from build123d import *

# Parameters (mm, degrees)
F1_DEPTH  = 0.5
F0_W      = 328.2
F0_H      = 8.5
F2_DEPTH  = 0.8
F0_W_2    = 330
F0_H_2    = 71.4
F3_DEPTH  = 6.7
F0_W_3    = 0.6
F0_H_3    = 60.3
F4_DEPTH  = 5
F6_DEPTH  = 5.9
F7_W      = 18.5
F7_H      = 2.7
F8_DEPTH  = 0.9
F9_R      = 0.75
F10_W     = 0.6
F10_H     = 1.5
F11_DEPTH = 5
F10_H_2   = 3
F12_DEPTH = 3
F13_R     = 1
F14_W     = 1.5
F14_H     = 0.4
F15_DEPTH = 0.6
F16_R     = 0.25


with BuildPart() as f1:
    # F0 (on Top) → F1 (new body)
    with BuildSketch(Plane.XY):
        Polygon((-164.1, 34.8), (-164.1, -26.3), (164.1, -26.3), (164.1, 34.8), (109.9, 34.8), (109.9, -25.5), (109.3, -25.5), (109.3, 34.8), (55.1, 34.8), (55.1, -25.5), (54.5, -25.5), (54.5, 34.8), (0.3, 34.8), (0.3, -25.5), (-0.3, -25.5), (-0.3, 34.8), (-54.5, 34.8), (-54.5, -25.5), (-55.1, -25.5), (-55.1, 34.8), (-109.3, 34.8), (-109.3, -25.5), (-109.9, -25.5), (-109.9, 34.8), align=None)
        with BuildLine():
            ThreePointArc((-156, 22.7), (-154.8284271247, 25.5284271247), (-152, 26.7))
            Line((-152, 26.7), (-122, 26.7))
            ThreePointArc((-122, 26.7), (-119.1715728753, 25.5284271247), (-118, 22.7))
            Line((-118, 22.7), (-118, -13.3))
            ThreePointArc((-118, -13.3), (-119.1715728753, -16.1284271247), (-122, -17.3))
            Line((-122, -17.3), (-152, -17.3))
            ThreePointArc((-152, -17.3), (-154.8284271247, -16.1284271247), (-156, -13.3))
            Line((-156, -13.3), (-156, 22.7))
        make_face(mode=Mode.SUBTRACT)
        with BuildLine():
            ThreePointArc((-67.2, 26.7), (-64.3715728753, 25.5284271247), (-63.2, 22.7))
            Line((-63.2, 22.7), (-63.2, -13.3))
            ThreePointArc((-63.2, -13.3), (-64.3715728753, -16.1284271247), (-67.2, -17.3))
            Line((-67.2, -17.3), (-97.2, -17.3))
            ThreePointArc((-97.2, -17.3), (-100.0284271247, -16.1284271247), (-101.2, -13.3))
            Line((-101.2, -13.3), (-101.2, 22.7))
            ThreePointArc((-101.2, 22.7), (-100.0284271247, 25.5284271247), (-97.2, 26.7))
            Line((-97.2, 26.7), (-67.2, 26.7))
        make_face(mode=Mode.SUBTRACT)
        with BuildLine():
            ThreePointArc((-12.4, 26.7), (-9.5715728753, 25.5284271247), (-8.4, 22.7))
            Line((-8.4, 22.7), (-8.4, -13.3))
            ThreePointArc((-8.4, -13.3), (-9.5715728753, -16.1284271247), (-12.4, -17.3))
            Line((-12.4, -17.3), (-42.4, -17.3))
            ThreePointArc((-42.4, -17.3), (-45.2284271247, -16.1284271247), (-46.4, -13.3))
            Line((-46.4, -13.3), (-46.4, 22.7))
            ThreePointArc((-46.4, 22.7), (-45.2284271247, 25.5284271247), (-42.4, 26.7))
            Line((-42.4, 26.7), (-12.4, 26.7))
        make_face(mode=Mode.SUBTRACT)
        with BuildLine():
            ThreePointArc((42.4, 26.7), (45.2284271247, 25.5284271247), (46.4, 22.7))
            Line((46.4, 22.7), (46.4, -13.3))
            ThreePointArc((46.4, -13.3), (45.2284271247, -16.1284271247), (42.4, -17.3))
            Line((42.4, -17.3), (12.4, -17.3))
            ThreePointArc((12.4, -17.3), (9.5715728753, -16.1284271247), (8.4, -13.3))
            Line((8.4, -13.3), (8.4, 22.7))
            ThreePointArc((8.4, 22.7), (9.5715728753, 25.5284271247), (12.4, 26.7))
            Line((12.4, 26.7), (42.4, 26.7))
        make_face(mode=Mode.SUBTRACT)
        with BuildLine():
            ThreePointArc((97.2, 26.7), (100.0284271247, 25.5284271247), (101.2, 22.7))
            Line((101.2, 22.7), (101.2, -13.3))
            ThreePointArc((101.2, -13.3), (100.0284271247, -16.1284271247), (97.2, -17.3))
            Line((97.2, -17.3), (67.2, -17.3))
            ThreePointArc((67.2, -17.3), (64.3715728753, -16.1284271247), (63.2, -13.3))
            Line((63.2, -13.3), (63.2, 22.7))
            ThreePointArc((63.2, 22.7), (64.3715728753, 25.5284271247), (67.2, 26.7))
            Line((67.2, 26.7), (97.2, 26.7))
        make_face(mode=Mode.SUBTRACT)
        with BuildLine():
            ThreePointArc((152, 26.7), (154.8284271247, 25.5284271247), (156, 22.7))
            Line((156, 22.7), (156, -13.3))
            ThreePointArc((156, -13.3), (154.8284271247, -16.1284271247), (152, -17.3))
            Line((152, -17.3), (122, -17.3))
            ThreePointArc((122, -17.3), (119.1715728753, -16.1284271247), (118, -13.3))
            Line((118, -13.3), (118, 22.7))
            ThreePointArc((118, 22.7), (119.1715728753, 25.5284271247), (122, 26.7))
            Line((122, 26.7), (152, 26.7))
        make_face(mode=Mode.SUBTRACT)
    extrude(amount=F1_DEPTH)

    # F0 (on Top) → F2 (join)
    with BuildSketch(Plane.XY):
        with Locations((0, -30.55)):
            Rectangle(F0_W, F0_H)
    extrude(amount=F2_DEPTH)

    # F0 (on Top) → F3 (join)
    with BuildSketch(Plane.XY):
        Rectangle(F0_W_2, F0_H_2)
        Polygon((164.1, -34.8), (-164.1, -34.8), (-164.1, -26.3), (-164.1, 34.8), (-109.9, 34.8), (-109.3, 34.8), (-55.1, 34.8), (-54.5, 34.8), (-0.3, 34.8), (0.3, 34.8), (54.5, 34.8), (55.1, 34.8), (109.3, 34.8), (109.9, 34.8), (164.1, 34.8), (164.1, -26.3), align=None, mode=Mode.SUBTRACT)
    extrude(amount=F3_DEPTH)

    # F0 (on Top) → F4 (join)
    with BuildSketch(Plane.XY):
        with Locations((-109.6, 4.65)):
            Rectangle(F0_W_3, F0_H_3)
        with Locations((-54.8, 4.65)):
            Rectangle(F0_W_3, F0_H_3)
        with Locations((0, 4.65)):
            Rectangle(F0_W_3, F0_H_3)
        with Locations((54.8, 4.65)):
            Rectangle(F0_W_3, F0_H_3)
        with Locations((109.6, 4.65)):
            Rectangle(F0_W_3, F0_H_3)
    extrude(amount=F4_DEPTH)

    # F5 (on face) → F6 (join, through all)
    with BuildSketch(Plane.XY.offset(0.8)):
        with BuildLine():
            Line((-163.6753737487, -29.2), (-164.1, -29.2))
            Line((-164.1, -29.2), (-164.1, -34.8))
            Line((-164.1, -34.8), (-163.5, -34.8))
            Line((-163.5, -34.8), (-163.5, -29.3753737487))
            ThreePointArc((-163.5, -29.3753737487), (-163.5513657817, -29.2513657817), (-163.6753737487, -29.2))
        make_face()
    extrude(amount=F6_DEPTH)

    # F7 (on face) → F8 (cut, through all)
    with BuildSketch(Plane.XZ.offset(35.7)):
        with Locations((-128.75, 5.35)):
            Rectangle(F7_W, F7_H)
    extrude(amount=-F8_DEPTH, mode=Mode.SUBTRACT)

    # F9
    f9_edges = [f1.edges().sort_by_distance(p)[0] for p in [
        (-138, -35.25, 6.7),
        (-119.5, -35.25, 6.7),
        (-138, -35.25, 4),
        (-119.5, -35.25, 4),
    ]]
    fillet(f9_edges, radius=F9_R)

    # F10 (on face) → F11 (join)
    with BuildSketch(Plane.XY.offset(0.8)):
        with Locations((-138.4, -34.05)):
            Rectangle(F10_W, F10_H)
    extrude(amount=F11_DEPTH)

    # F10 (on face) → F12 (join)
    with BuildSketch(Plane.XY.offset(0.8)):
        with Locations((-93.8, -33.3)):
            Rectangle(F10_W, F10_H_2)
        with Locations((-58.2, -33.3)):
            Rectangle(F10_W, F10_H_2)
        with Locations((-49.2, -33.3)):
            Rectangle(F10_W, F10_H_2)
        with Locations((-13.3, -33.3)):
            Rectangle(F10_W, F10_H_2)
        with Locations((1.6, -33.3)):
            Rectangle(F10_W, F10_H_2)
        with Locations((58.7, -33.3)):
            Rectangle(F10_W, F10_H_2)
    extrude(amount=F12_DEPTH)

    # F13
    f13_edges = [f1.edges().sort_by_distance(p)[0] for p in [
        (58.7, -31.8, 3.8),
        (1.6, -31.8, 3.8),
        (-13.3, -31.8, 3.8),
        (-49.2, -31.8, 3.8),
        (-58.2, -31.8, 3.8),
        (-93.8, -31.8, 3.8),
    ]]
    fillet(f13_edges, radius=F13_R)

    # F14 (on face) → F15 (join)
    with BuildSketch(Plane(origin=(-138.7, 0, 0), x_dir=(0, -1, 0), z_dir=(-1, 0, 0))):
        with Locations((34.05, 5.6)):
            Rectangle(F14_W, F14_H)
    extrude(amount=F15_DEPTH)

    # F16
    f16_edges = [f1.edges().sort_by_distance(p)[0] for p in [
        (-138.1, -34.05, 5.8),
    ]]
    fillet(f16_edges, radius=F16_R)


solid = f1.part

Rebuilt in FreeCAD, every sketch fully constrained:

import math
import FreeCAD as App
import Part
import Sketcher


def edges_at(feature, points):
    """Names of the edges that pass closest to the given points."""
    edges = feature.Shape.Edges
    near = lambda p: min(range(len(edges)), key=lambda i: edges[i].distToShape(Part.Vertex(*p))[0])
    return sorted({f"Edge{near(p) + 1}" for p in points})

doc = App.newDocument("Part")
body = doc.addObject("PartDesign::Body", "Body")

sketch1 = body.newObject("Sketcher::SketchObject", "Sketch")
sketch1.AttachmentSupport = (doc.getObject("XY_Plane"), [""])
sketch1.MapMode = "FlatFace"
sketch1.addGeometry([
    Part.LineSegment(App.Vector(-164.1, 34.8, 0), App.Vector(-164.1, -26.3, 0)),
    Part.LineSegment(App.Vector(-164.1, -26.3, 0), App.Vector(164.1, -26.3, 0)),
    Part.LineSegment(App.Vector(164.1, -26.3, 0), App.Vector(164.1, 34.8, 0)),
    Part.LineSegment(App.Vector(164.1, 34.8, 0), App.Vector(109.9, 34.8, 0)),
    Part.LineSegment(App.Vector(109.9, 34.8, 0), App.Vector(109.9, -25.5, 0)),
    Part.LineSegment(App.Vector(109.9, -25.5, 0), App.Vector(109.3, -25.5, 0)),
    Part.LineSegment(App.Vector(109.3, -25.5, 0), App.Vector(109.3, 34.8, 0)),
    Part.LineSegment(App.Vector(109.3, 34.8, 0), App.Vector(55.1, 34.8, 0)),
    Part.LineSegment(App.Vector(55.1, 34.8, 0), App.Vector(55.1, -25.5, 0)),
    Part.LineSegment(App.Vector(55.1, -25.5, 0), App.Vector(54.5, -25.5, 0)),
    Part.LineSegment(App.Vector(54.5, -25.5, 0), App.Vector(54.5, 34.8, 0)),
    Part.LineSegment(App.Vector(54.5, 34.8, 0), App.Vector(0.3, 34.8, 0)),
    Part.LineSegment(App.Vector(0.3, 34.8, 0), App.Vector(0.3, -25.5, 0)),
    Part.LineSegment(App.Vector(0.3, -25.5, 0), App.Vector(-0.3, -25.5, 0)),
    Part.LineSegment(App.Vector(-0.3, -25.5, 0), App.Vector(-0.3, 34.8, 0)),
    Part.LineSegment(App.Vector(-0.3, 34.8, 0), App.Vector(-54.5, 34.8, 0)),
    Part.LineSegment(App.Vector(-54.5, 34.8, 0), App.Vector(-54.5, -25.5, 0)),
    Part.LineSegment(App.Vector(-54.5, -25.5, 0), App.Vector(-55.1, -25.5, 0)),
    Part.LineSegment(App.Vector(-55.1, -25.5, 0), App.Vector(-55.1, 34.8, 0)),
    Part.LineSegment(App.Vector(-55.1, 34.8, 0), App.Vector(-109.3, 34.8, 0)),
    Part.LineSegment(App.Vector(-109.3, 34.8, 0), App.Vector(-109.3, -25.5, 0)),
    Part.LineSegment(App.Vector(-109.3, -25.5, 0), App.Vector(-109.9, -25.5, 0)),
    Part.LineSegment(App.Vector(-109.9, -25.5, 0), App.Vector(-109.9, 34.8, 0)),
    Part.LineSegment(App.Vector(-109.9, 34.8, 0), App.Vector(-164.1, 34.8, 0)),
    Part.LineSegment(App.Vector(-156, -13.3, 0), App.Vector(-156, 22.7, 0)),
    Part.ArcOfCircle(Part.Circle(App.Vector(-152, 22.7, 0), App.Vector(0, 0, 1), 4), math.radians(90), math.radians(180)),
    Part.LineSegment(App.Vector(-152, 26.7, 0), App.Vector(-122, 26.7, 0)),
    Part.ArcOfCircle(Part.Circle(App.Vector(-122, 22.7, 0), App.Vector(0, 0, 1), 4), math.radians(0), math.radians(90)),
    Part.LineSegment(App.Vector(-118, 22.7, 0), App.Vector(-118, -13.3, 0)),
    Part.ArcOfCircle(Part.Circle(App.Vector(-122, -13.3, 0), App.Vector(0, 0, 1), 4), math.radians(-90), math.radians(0)),
    Part.LineSegment(App.Vector(-122, -17.3, 0), App.Vector(-152, -17.3, 0)),
    Part.ArcOfCircle(Part.Circle(App.Vector(-152, -13.3, 0), App.Vector(0, 0, 1), 4), math.radians(180), math.radians(270)),
    Part.LineSegment(App.Vector(-97.2, 26.7, 0), App.Vector(-67.2, 26.7, 0)),
    Part.ArcOfCircle(Part.Circle(App.Vector(-67.2, 22.7, 0), App.Vector(0, 0, 1), 4), math.radians(0), math.radians(90)),
    Part.LineSegment(App.Vector(-63.2, 22.7, 0), App.Vector(-63.2, -13.3, 0)),
    Part.ArcOfCircle(Part.Circle(App.Vector(-67.2, -13.3, 0), App.Vector(0, 0, 1), 4), math.radians(-90), math.radians(0)),
    Part.LineSegment(App.Vector(-67.2, -17.3, 0), App.Vector(-97.2, -17.3, 0)),
    Part.ArcOfCircle(Part.Circle(App.Vector(-97.2, -13.3, 0), App.Vector(0, 0, 1), 4), math.radians(180), math.radians(270)),
    Part.LineSegment(App.Vector(-101.2, -13.3, 0), App.Vector(-101.2, 22.7, 0)),
    Part.ArcOfCircle(Part.Circle(App.Vector(-97.2, 22.7, 0), App.Vector(0, 0, 1), 4), math.radians(90), math.radians(180)),
    Part.LineSegment(App.Vector(-42.4, 26.7, 0), App.Vector(-12.4, 26.7, 0)),
    Part.ArcOfCircle(Part.Circle(App.Vector(-12.4, 22.7, 0), App.Vector(0, 0, 1), 4), math.radians(0), math.radians(90)),
    Part.LineSegment(App.Vector(-8.4, 22.7, 0), App.Vector(-8.4, -13.3, 0)),
    Part.ArcOfCircle(Part.Circle(App.Vector(-12.4, -13.3, 0), App.Vector(0, 0, 1), 4), math.radians(-90), math.radians(0)),
    Part.LineSegment(App.Vector(-12.4, -17.3, 0), App.Vector(-42.4, -17.3, 0)),
    Part.ArcOfCircle(Part.Circle(App.Vector(-42.4, -13.3, 0), App.Vector(0, 0, 1), 4), math.radians(180), math.radians(270)),
    Part.LineSegment(App.Vector(-46.4, -13.3, 0), App.Vector(-46.4, 22.7, 0)),
    Part.ArcOfCircle(Part.Circle(App.Vector(-42.4, 22.7, 0), App.Vector(0, 0, 1), 4), math.radians(90), math.radians(180)),
    Part.LineSegment(App.Vector(12.4, 26.7, 0), App.Vector(42.4, 26.7, 0)),
    Part.ArcOfCircle(Part.Circle(App.Vector(42.4, 22.7, 0), App.Vector(0, 0, 1), 4), math.radians(0), math.radians(90)),
    Part.LineSegment(App.Vector(46.4, 22.7, 0), App.Vector(46.4, -13.3, 0)),
    Part.ArcOfCircle(Part.Circle(App.Vector(42.4, -13.3, 0), App.Vector(0, 0, 1), 4), math.radians(-90), math.radians(0)),
    Part.LineSegment(App.Vector(42.4, -17.3, 0), App.Vector(12.4, -17.3, 0)),
    Part.ArcOfCircle(Part.Circle(App.Vector(12.4, -13.3, 0), App.Vector(0, 0, 1), 4), math.radians(180), math.radians(270)),
    Part.LineSegment(App.Vector(8.4, -13.3, 0), App.Vector(8.4, 22.7, 0)),
    Part.ArcOfCircle(Part.Circle(App.Vector(12.4, 22.7, 0), App.Vector(0, 0, 1), 4), math.radians(90), math.radians(180)),
    Part.LineSegment(App.Vector(67.2, 26.7, 0), App.Vector(97.2, 26.7, 0)),
    Part.ArcOfCircle(Part.Circle(App.Vector(97.2, 22.7, 0), App.Vector(0, 0, 1), 4), math.radians(0), math.radians(90)),
    Part.LineSegment(App.Vector(101.2, 22.7, 0), App.Vector(101.2, -13.3, 0)),
    Part.ArcOfCircle(Part.Circle(App.Vector(97.2, -13.3, 0), App.Vector(0, 0, 1), 4), math.radians(-90), math.radians(0)),
    Part.LineSegment(App.Vector(97.2, -17.3, 0), App.Vector(67.2, -17.3, 0)),
    Part.ArcOfCircle(Part.Circle(App.Vector(67.2, -13.3, 0), App.Vector(0, 0, 1), 4), math.radians(180), math.radians(270)),
    Part.LineSegment(App.Vector(63.2, -13.3, 0), App.Vector(63.2, 22.7, 0)),
    Part.ArcOfCircle(Part.Circle(App.Vector(67.2, 22.7, 0), App.Vector(0, 0, 1), 4), math.radians(90), math.radians(180)),
    Part.LineSegment(App.Vector(122, 26.7, 0), App.Vector(152, 26.7, 0)),
    Part.ArcOfCircle(Part.Circle(App.Vector(152, 22.7, 0), App.Vector(0, 0, 1), 4), math.radians(0), math.radians(90)),
    Part.LineSegment(App.Vector(156, 22.7, 0), App.Vector(156, -13.3, 0)),
    Part.ArcOfCircle(Part.Circle(App.Vector(152, -13.3, 0), App.Vector(0, 0, 1), 4), math.radians(-90), math.radians(0)),
    Part.LineSegment(App.Vector(152, -17.3, 0), App.Vector(122, -17.3, 0)),
    Part.ArcOfCircle(Part.Circle(App.Vector(122, -13.3, 0), App.Vector(0, 0, 1), 4), math.radians(180), math.radians(270)),
    Part.LineSegment(App.Vector(118, -13.3, 0), App.Vector(118, 22.7, 0)),
    Part.ArcOfCircle(Part.Circle(App.Vector(122, 22.7, 0), App.Vector(0, 0, 1), 4), math.radians(90), math.radians(180)),
], False)
sketch1.addConstraint([
    Sketcher.Constraint("Coincident", 0, 2, 1, 1),
    Sketcher.Constraint("Coincident", 1, 2, 2, 1),
    Sketcher.Constraint("Coincident", 2, 2, 3, 1),
    Sketcher.Constraint("Coincident", 3, 2, 4, 1),
    Sketcher.Constraint("Coincident", 4, 2, 5, 1),
    Sketcher.Constraint("Coincident", 5, 2, 6, 1),
    Sketcher.Constraint("Coincident", 6, 2, 7, 1),
    Sketcher.Constraint("Coincident", 7, 2, 8, 1),
    Sketcher.Constraint("Coincident", 8, 2, 9, 1),
    Sketcher.Constraint("Coincident", 9, 2, 10, 1),
    Sketcher.Constraint("Coincident", 10, 2, 11, 1),
    Sketcher.Constraint("Coincident", 11, 2, 12, 1),
    Sketcher.Constraint("Coincident", 12, 2, 13, 1),
    Sketcher.Constraint("Coincident", 13, 2, 14, 1),
    Sketcher.Constraint("Coincident", 14, 2, 15, 1),
    Sketcher.Constraint("Coincident", 15, 2, 16, 1),
    Sketcher.Constraint("Coincident", 16, 2, 17, 1),
    Sketcher.Constraint("Coincident", 17, 2, 18, 1),
    Sketcher.Constraint("Coincident", 18, 2, 19, 1),
    Sketcher.Constraint("Coincident", 19, 2, 20, 1),
    Sketcher.Constraint("Coincident", 20, 2, 21, 1),
    Sketcher.Constraint("Coincident", 21, 2, 22, 1),
    Sketcher.Constraint("Coincident", 22, 2, 23, 1),
    Sketcher.Constraint("Coincident", 23, 2, 0, 1),
    Sketcher.Constraint("Tangent", 24, 2, 25, 2),
    Sketcher.Constraint("Tangent", 25, 1, 26, 1),
    Sketcher.Constraint("Tangent", 26, 2, 27, 2),
    Sketcher.Constraint("Tangent", 27, 1, 28, 1),
    Sketcher.Constraint("Tangent", 28, 2, 29, 2),
    Sketcher.Constraint("Tangent", 29, 1, 30, 1),
    Sketcher.Constraint("Tangent", 30, 2, 31, 2),
    Sketcher.Constraint("Tangent", 31, 1, 24, 1),
    Sketcher.Constraint("Tangent", 32, 2, 33, 2),
    Sketcher.Constraint("Tangent", 33, 1, 34, 1),
    Sketcher.Constraint("Tangent", 34, 2, 35, 2),
    Sketcher.Constraint("Tangent", 35, 1, 36, 1),
    Sketcher.Constraint("Tangent", 36, 2, 37, 2),
    Sketcher.Constraint("Tangent", 37, 1, 38, 1),
    Sketcher.Constraint("Tangent", 38, 2, 39, 2),
    Sketcher.Constraint("Tangent", 39, 1, 32, 1),
    Sketcher.Constraint("Tangent", 40, 2, 41, 2),
    Sketcher.Constraint("Tangent", 41, 1, 42, 1),
    Sketcher.Constraint("Tangent", 42, 2, 43, 2),
    Sketcher.Constraint("Tangent", 43, 1, 44, 1),
    Sketcher.Constraint("Tangent", 44, 2, 45, 2),
    Sketcher.Constraint("Tangent", 45, 1, 46, 1),
    Sketcher.Constraint("Tangent", 46, 2, 47, 2),
    Sketcher.Constraint("Tangent", 47, 1, 40, 1),
    Sketcher.Constraint("Tangent", 48, 2, 49, 2),
    Sketcher.Constraint("Tangent", 49, 1, 50, 1),
    Sketcher.Constraint("Tangent", 50, 2, 51, 2),
    Sketcher.Constraint("Tangent", 51, 1, 52, 1),
    Sketcher.Constraint("Tangent", 52, 2, 53, 2),
    Sketcher.Constraint("Tangent", 53, 1, 54, 1),
    Sketcher.Constraint("Tangent", 54, 2, 55, 2),
    Sketcher.Constraint("Tangent", 55, 1, 48, 1),
    Sketcher.Constraint("Tangent", 56, 2, 57, 2),
    Sketcher.Constraint("Tangent", 57, 1, 58, 1),
    Sketcher.Constraint("Tangent", 58, 2, 59, 2),
    Sketcher.Constraint("Tangent", 59, 1, 60, 1),
    Sketcher.Constraint("Tangent", 60, 2, 61, 2),
    Sketcher.Constraint("Tangent", 61, 1, 62, 1),
    Sketcher.Constraint("Tangent", 62, 2, 63, 2),
    Sketcher.Constraint("Tangent", 63, 1, 56, 1),
    Sketcher.Constraint("Tangent", 64, 2, 65, 2),
    Sketcher.Constraint("Tangent", 65, 1, 66, 1),
    Sketcher.Constraint("Tangent", 66, 2, 67, 2),
    Sketcher.Constraint("Tangent", 67, 1, 68, 1),
    Sketcher.Constraint("Tangent", 68, 2, 69, 2),
    Sketcher.Constraint("Tangent", 69, 1, 70, 1),
    Sketcher.Constraint("Tangent", 70, 2, 71, 2),
    Sketcher.Constraint("Tangent", 71, 1, 64, 1),
    Sketcher.Constraint("Vertical", 0),
    Sketcher.Constraint("Horizontal", 1),
    Sketcher.Constraint("Vertical", 2),
    Sketcher.Constraint("Horizontal", 3),
    Sketcher.Constraint("Vertical", 4),
    Sketcher.Constraint("Horizontal", 5),
    Sketcher.Constraint("Vertical", 6),
    Sketcher.Constraint("Horizontal", 7),
    Sketcher.Constraint("Vertical", 8),
    Sketcher.Constraint("Horizontal", 9),
    Sketcher.Constraint("Vertical", 10),
    Sketcher.Constraint("Horizontal", 11),
    Sketcher.Constraint("Vertical", 12),
    Sketcher.Constraint("Horizontal", 13),
    Sketcher.Constraint("Vertical", 14),
    Sketcher.Constraint("Horizontal", 15),
    Sketcher.Constraint("Vertical", 16),
    Sketcher.Constraint("Horizontal", 17),
    Sketcher.Constraint("Vertical", 18),
    Sketcher.Constraint("Horizontal", 19),
    Sketcher.Constraint("Vertical", 20),
    Sketcher.Constraint("Horizontal", 21),
    Sketcher.Constraint("Vertical", 22),
    Sketcher.Constraint("Horizontal", 23),
    Sketcher.Constraint("Vertical", 24),
    Sketcher.Constraint("Horizontal", 26),
    Sketcher.Constraint("Vertical", 28),
    Sketcher.Constraint("Horizontal", 30),
    Sketcher.Constraint("Horizontal", 32),
    Sketcher.Constraint("Vertical", 34),
    Sketcher.Constraint("Horizontal", 36),
    Sketcher.Constraint("Vertical", 38),
    Sketcher.Constraint("Horizontal", 40),
    Sketcher.Constraint("Vertical", 42),
    Sketcher.Constraint("Horizontal", 44),
    Sketcher.Constraint("Vertical", 46),
    Sketcher.Constraint("Horizontal", 48),
    Sketcher.Constraint("Vertical", 50),
    Sketcher.Constraint("Horizontal", 52),
    Sketcher.Constraint("Vertical", 54),
    Sketcher.Constraint("Horizontal", 56),
    Sketcher.Constraint("Vertical", 58),
    Sketcher.Constraint("Horizontal", 60),
    Sketcher.Constraint("Vertical", 62),
    Sketcher.Constraint("Horizontal", 64),
    Sketcher.Constraint("Vertical", 66),
    Sketcher.Constraint("Horizontal", 68),
    Sketcher.Constraint("Vertical", 70),
    Sketcher.Constraint("Equal", 25, 27),
    Sketcher.Constraint("Equal", 27, 29),
    Sketcher.Constraint("Equal", 29, 31),
    Sketcher.Constraint("Equal", 31, 33),
    Sketcher.Constraint("Equal", 33, 35),
    Sketcher.Constraint("Equal", 35, 37),
    Sketcher.Constraint("Equal", 37, 39),
    Sketcher.Constraint("Equal", 39, 41),
    Sketcher.Constraint("Equal", 41, 43),
    Sketcher.Constraint("Equal", 43, 45),
    Sketcher.Constraint("Equal", 45, 47),
    Sketcher.Constraint("Equal", 47, 49),
    Sketcher.Constraint("Equal", 49, 51),
    Sketcher.Constraint("Equal", 51, 53),
    Sketcher.Constraint("Equal", 53, 55),
    Sketcher.Constraint("Equal", 55, 57),
    Sketcher.Constraint("Equal", 57, 59),
    Sketcher.Constraint("Equal", 59, 61),
    Sketcher.Constraint("Equal", 61, 63),
    Sketcher.Constraint("Equal", 63, 65),
    Sketcher.Constraint("Equal", 65, 67),
    Sketcher.Constraint("Equal", 67, 69),
    Sketcher.Constraint("Equal", 69, 71),
    Sketcher.Constraint("Symmetric", 47, 3, 49, 3, -2),
    Sketcher.Constraint("Symmetric", 43, 3, 53, 3, -2),
    Sketcher.Constraint("Symmetric", 39, 3, 57, 3, -2),
    Sketcher.Constraint("Symmetric", 35, 3, 61, 3, -2),
    Sketcher.Constraint("Symmetric", 25, 3, 65, 3, -2),
    Sketcher.Constraint("Symmetric", 29, 3, 69, 3, -2),
    Sketcher.Constraint("Symmetric", 11, 2, 14, 2, -2),
    Sketcher.Constraint("Symmetric", 9, 2, 16, 2, -2),
    Sketcher.Constraint("Symmetric", 7, 2, 18, 2, -2),
    Sketcher.Constraint("Symmetric", 5, 2, 20, 2, -2),
    Sketcher.Constraint("Symmetric", 3, 2, 22, 2, -2),
    Sketcher.Constraint("Horizontal", 27, 3, 33, 3),
    Sketcher.Constraint("Horizontal", 31, 3, 35, 3),
    Sketcher.Constraint("Horizontal", 39, 3, 41, 3),
    Sketcher.Constraint("Horizontal", 37, 3, 43, 3),
    Sketcher.Constraint("Horizontal", 3, 2, 6, 2),
    Sketcher.Constraint("Horizontal", 5, 2, 8, 2),
    Sketcher.Constraint("Horizontal", 7, 2, 10, 2),
    Sketcher.Constraint("Horizontal", 9, 2, 12, 2),
    Sketcher.Constraint("Equal", 3, 7),
    Sketcher.Constraint("Equal", 5, 9),
    Sketcher.Constraint("Equal", 7, 11),
    Sketcher.Constraint("Equal", 9, 13),
    Sketcher.Constraint("Equal", 19, 23),
    Sketcher.Constraint("Equal", 30, 32),
    Sketcher.Constraint("Equal", 36, 40),
    Sketcher.Constraint("Radius", 25, 4.0),
    Sketcher.Constraint("DistanceX", 26, 1, 26, 2, 30.0),
    Sketcher.Constraint("DistanceY", 24, 1, 24, 2, 36.0),
    Sketcher.Constraint("DistanceX", 1, 1, 1, 2, 328.2),
    Sketcher.Constraint("DistanceX", 3, 2, 3, 1, 54.2),
    Sketcher.Constraint("DistanceY", 0, 2, 0, 1, 61.1),
    Sketcher.Constraint("DistanceY", 4, 2, 4, 1, 60.3),
    Sketcher.Constraint("DistanceX", 25, 3, -1, 1, 152.0),
    Sketcher.Constraint("DistanceY", -1, 1, 25, 3, 22.7),
    Sketcher.Constraint("DistanceX", 33, 3, -1, 1, 67.2),
    Sketcher.Constraint("DistanceX", 41, 3, -1, 1, 12.4),
    Sketcher.Constraint("DistanceY", 0, 2, -1, 1, 26.3),
])
pad1 = body.newObject("PartDesign::Pad", "Pad")
pad1.Profile = sketch1
pad1.Length = 0.5

sketch2 = body.newObject("Sketcher::SketchObject", "Sketch001")
sketch2.AttachmentSupport = (doc.getObject("XY_Plane"), [""])
sketch2.MapMode = "FlatFace"
sketch2.addGeometry([
    Part.LineSegment(App.Vector(-164, -26, 0), App.Vector(-164, -35, 0)),
    Part.LineSegment(App.Vector(-164, -35, 0), App.Vector(164, -35, 0)),
    Part.LineSegment(App.Vector(164, -35, 0), App.Vector(164, -26, 0)),
    Part.LineSegment(App.Vector(164, -26, 0), App.Vector(-164, -26, 0)),
], False)
sketch2.addConstraint([
    Sketcher.Constraint("Coincident", 0, 2, 1, 1),
    Sketcher.Constraint("Coincident", 1, 2, 2, 1),
    Sketcher.Constraint("Coincident", 2, 2, 3, 1),
    Sketcher.Constraint("Coincident", 3, 2, 0, 1),
    Sketcher.Constraint("Vertical", 0),
    Sketcher.Constraint("Horizontal", 1),
    Sketcher.Constraint("Vertical", 2),
    Sketcher.Constraint("Horizontal", 3),
    Sketcher.Constraint("DistanceX", 1, 1, 1, 2, 328.2),
    Sketcher.Constraint("DistanceY", 0, 2, 0, 1, 8.5),
    Sketcher.Constraint("DistanceX", 0, 2, -1, 1, 164.1),
    Sketcher.Constraint("DistanceY", 0, 2, -1, 1, 34.8),
])
pad2 = body.newObject("PartDesign::Pad", "Pad001")
pad2.Profile = sketch2
pad2.Length = 0.8

sketch3 = body.newObject("Sketcher::SketchObject", "Sketch002")
sketch3.AttachmentSupport = (doc.getObject("XY_Plane"), [""])
sketch3.MapMode = "FlatFace"
sketch3.addGeometry([
    Part.LineSegment(App.Vector(-165, 36, 0), App.Vector(-165, -36, 0)),
    Part.LineSegment(App.Vector(-165, -36, 0), App.Vector(165, -36, 0)),
    Part.LineSegment(App.Vector(165, -36, 0), App.Vector(165, 36, 0)),
    Part.LineSegment(App.Vector(165, 36, 0), App.Vector(-165, 36, 0)),
    Part.LineSegment(App.Vector(164, 35, 0), App.Vector(164, -35, 0)),
    Part.LineSegment(App.Vector(164, -35, 0), App.Vector(-164, -35, 0)),
    Part.LineSegment(App.Vector(-164, -35, 0), App.Vector(-164, 35, 0)),
    Part.LineSegment(App.Vector(-164, 35, 0), App.Vector(164, 35, 0)),
], False)
sketch3.addConstraint([
    Sketcher.Constraint("Coincident", 0, 2, 1, 1),
    Sketcher.Constraint("Coincident", 1, 2, 2, 1),
    Sketcher.Constraint("Coincident", 2, 2, 3, 1),
    Sketcher.Constraint("Coincident", 3, 2, 0, 1),
    Sketcher.Constraint("Coincident", 4, 2, 5, 1),
    Sketcher.Constraint("Coincident", 5, 2, 6, 1),
    Sketcher.Constraint("Coincident", 6, 2, 7, 1),
    Sketcher.Constraint("Coincident", 7, 2, 4, 1),
    Sketcher.Constraint("Vertical", 0),
    Sketcher.Constraint("Horizontal", 1),
    Sketcher.Constraint("Vertical", 2),
    Sketcher.Constraint("Horizontal", 3),
    Sketcher.Constraint("Vertical", 4),
    Sketcher.Constraint("Horizontal", 5),
    Sketcher.Constraint("Vertical", 6),
    Sketcher.Constraint("Horizontal", 7),
    Sketcher.Constraint("Symmetric", 0, 2, 2, 2, -1, 1),
    Sketcher.Constraint("Symmetric", 4, 2, 6, 2, -1, 1),
    Sketcher.Constraint("DistanceX", 1, 1, 1, 2, 330.0),
    Sketcher.Constraint("DistanceX", 5, 2, 5, 1, 328.2),
    Sketcher.Constraint("DistanceY", 0, 2, 0, 1, 71.4),
    Sketcher.Constraint("DistanceY", 4, 2, 4, 1, 69.6),
])
pad3 = body.newObject("PartDesign::Pad", "Pad002")
pad3.Profile = sketch3
pad3.Length = 6.7

sketch4 = body.newObject("Sketcher::SketchObject", "Sketch003")
sketch4.AttachmentSupport = (doc.getObject("XY_Plane"), [""])
sketch4.MapMode = "FlatFace"
sketch4.addGeometry([
    Part.LineSegment(App.Vector(-109.9, 34.8, 0), App.Vector(-109.9, -25.5, 0)),
    Part.LineSegment(App.Vector(-109.9, -25.5, 0), App.Vector(-109.3, -25.5, 0)),
    Part.LineSegment(App.Vector(-109.3, -25.5, 0), App.Vector(-109.3, 34.8, 0)),
    Part.LineSegment(App.Vector(-109.3, 34.8, 0), App.Vector(-109.9, 34.8, 0)),
    Part.LineSegment(App.Vector(-55.1, 34.8, 0), App.Vector(-55.1, -25.5, 0)),
    Part.LineSegment(App.Vector(-55.1, -25.5, 0), App.Vector(-54.5, -25.5, 0)),
    Part.LineSegment(App.Vector(-54.5, -25.5, 0), App.Vector(-54.5, 34.8, 0)),
    Part.LineSegment(App.Vector(-54.5, 34.8, 0), App.Vector(-55.1, 34.8, 0)),
    Part.LineSegment(App.Vector(-0.3, 34.8, 0), App.Vector(-0.3, -25.5, 0)),
    Part.LineSegment(App.Vector(-0.3, -25.5, 0), App.Vector(0.3, -25.5, 0)),
    Part.LineSegment(App.Vector(0.3, -25.5, 0), App.Vector(0.3, 34.8, 0)),
    Part.LineSegment(App.Vector(0.3, 34.8, 0), App.Vector(-0.3, 34.8, 0)),
    Part.LineSegment(App.Vector(54.5, 34.8, 0), App.Vector(54.5, -25.5, 0)),
    Part.LineSegment(App.Vector(54.5, -25.5, 0), App.Vector(55.1, -25.5, 0)),
    Part.LineSegment(App.Vector(55.1, -25.5, 0), App.Vector(55.1, 34.8, 0)),
    Part.LineSegment(App.Vector(55.1, 34.8, 0), App.Vector(54.5, 34.8, 0)),
    Part.LineSegment(App.Vector(109.3, 34.8, 0), App.Vector(109.3, -25.5, 0)),
    Part.LineSegment(App.Vector(109.3, -25.5, 0), App.Vector(109.9, -25.5, 0)),
    Part.LineSegment(App.Vector(109.9, -25.5, 0), App.Vector(109.9, 34.8, 0)),
    Part.LineSegment(App.Vector(109.9, 34.8, 0), App.Vector(109.3, 34.8, 0)),
], False)
sketch4.addConstraint([
    Sketcher.Constraint("Coincident", 0, 2, 1, 1),
    Sketcher.Constraint("Coincident", 1, 2, 2, 1),
    Sketcher.Constraint("Coincident", 2, 2, 3, 1),
    Sketcher.Constraint("Coincident", 3, 2, 0, 1),
    Sketcher.Constraint("Coincident", 4, 2, 5, 1),
    Sketcher.Constraint("Coincident", 5, 2, 6, 1),
    Sketcher.Constraint("Coincident", 6, 2, 7, 1),
    Sketcher.Constraint("Coincident", 7, 2, 4, 1),
    Sketcher.Constraint("Coincident", 8, 2, 9, 1),
    Sketcher.Constraint("Coincident", 9, 2, 10, 1),
    Sketcher.Constraint("Coincident", 10, 2, 11, 1),
    Sketcher.Constraint("Coincident", 11, 2, 8, 1),
    Sketcher.Constraint("Coincident", 12, 2, 13, 1),
    Sketcher.Constraint("Coincident", 13, 2, 14, 1),
    Sketcher.Constraint("Coincident", 14, 2, 15, 1),
    Sketcher.Constraint("Coincident", 15, 2, 12, 1),
    Sketcher.Constraint("Coincident", 16, 2, 17, 1),
    Sketcher.Constraint("Coincident", 17, 2, 18, 1),
    Sketcher.Constraint("Coincident", 18, 2, 19, 1),
    Sketcher.Constraint("Coincident", 19, 2, 16, 1),
    Sketcher.Constraint("Vertical", 0),
    Sketcher.Constraint("Horizontal", 1),
    Sketcher.Constraint("Vertical", 2),
    Sketcher.Constraint("Horizontal", 3),
    Sketcher.Constraint("Vertical", 4),
    Sketcher.Constraint("Horizontal", 5),
    Sketcher.Constraint("Vertical", 6),
    Sketcher.Constraint("Horizontal", 7),
    Sketcher.Constraint("Vertical", 8),
    Sketcher.Constraint("Horizontal", 9),
    Sketcher.Constraint("Vertical", 10),
    Sketcher.Constraint("Horizontal", 11),
    Sketcher.Constraint("Vertical", 12),
    Sketcher.Constraint("Horizontal", 13),
    Sketcher.Constraint("Vertical", 14),
    Sketcher.Constraint("Horizontal", 15),
    Sketcher.Constraint("Vertical", 16),
    Sketcher.Constraint("Horizontal", 17),
    Sketcher.Constraint("Vertical", 18),
    Sketcher.Constraint("Horizontal", 19),
    Sketcher.Constraint("Symmetric", 5, 2, 12, 2, -2),
    Sketcher.Constraint("Symmetric", 7, 2, 14, 2, -2),
    Sketcher.Constraint("Symmetric", 1, 2, 16, 2, -2),
    Sketcher.Constraint("Symmetric", 3, 2, 18, 2, -2),
    Sketcher.Constraint("Horizontal", 1, 2, 4, 2),
    Sketcher.Constraint("Horizontal", 3, 2, 6, 2),
    Sketcher.Constraint("Horizontal", 5, 2, 8, 2),
    Sketcher.Constraint("Horizontal", 7, 2, 10, 2),
    Sketcher.Constraint("Equal", 3, 5),
    Sketcher.Constraint("Equal", 7, 9),
    Sketcher.Constraint("DistanceX", 1, 1, 1, 2, 0.6),
    Sketcher.Constraint("DistanceY", 0, 2, 0, 1, 60.3),
    Sketcher.Constraint("DistanceX", 1, 2, 8, 2, 109.0),
    Sketcher.Constraint("DistanceX", 5, 2, 12, 2, 109.0),
    Sketcher.Constraint("DistanceX", 9, 2, 16, 2, 109.0),
    Sketcher.Constraint("DistanceY", 0, 2, -1, 1, 25.5),
])
pad4 = body.newObject("PartDesign::Pad", "Pad003")
pad4.Profile = sketch4
pad4.Length = 5

sketch5 = body.newObject("Sketcher::SketchObject", "Sketch004")
sketch5.AttachmentSupport = (doc.getObject("XY_Plane"), [""])
sketch5.MapMode = "FlatFace"
sketch5.AttachmentOffset = App.Placement(App.Vector(0, 0, 0.8), App.Rotation())
sketch5.addGeometry([
    Part.LineSegment(App.Vector(-163.68, -29.2, 0), App.Vector(-164.1, -29.2, 0)),
    Part.LineSegment(App.Vector(-164.1, -29.2, 0), App.Vector(-164.1, -34.8, 0)),
    Part.LineSegment(App.Vector(-164.1, -34.8, 0), App.Vector(-163.5, -34.8, 0)),
    Part.LineSegment(App.Vector(-163.5, -34.8, 0), App.Vector(-163.5, -29.38, 0)),
    Part.ArcOfCircle(Part.Circle(App.Vector(-163.68, -29.38, 0), App.Vector(0, 0, 1), 0.18), math.radians(0), math.radians(90)),
], False)
sketch5.addConstraint([
    Sketcher.Constraint("Coincident", 0, 2, 1, 1),
    Sketcher.Constraint("Coincident", 1, 2, 2, 1),
    Sketcher.Constraint("Coincident", 2, 2, 3, 1),
    Sketcher.Constraint("Tangent", 3, 2, 4, 1),
    Sketcher.Constraint("Tangent", 4, 2, 0, 1),
    Sketcher.Constraint("Horizontal", 0),
    Sketcher.Constraint("Vertical", 1),
    Sketcher.Constraint("Horizontal", 2),
    Sketcher.Constraint("Vertical", 3),
    Sketcher.Constraint("DistanceX", 2, 1, 2, 2, 0.6),
    Sketcher.Constraint("DistanceY", 1, 2, 1, 1, 5.6),
    Sketcher.Constraint("DistanceX", 0, 2, -1, 1, 164.1),
    Sketcher.Constraint("DistanceY", 0, 2, -1, 1, 29.2),
    Sketcher.Constraint("Radius", 4, 0.175374),
])
pad5 = body.newObject("PartDesign::Pad", "Pad004")
pad5.Profile = sketch5
pad5.Length = 5.9

sketch6 = body.newObject("Sketcher::SketchObject", "Sketch005")
sketch6.AttachmentSupport = (doc.getObject("XZ_Plane"), [""])
sketch6.MapMode = "FlatFace"
sketch6.AttachmentOffset = App.Placement(App.Vector(0, 0, 35.7), App.Rotation())
sketch6.addGeometry([
    Part.LineSegment(App.Vector(-138, 6.7, 0), App.Vector(-138, 4, 0)),
    Part.LineSegment(App.Vector(-138, 4, 0), App.Vector(-119.5, 4, 0)),
    Part.LineSegment(App.Vector(-119.5, 4, 0), App.Vector(-119.5, 6.7, 0)),
    Part.LineSegment(App.Vector(-119.5, 6.7, 0), App.Vector(-138, 6.7, 0)),
], False)
sketch6.addConstraint([
    Sketcher.Constraint("Coincident", 0, 2, 1, 1),
    Sketcher.Constraint("Coincident", 1, 2, 2, 1),
    Sketcher.Constraint("Coincident", 2, 2, 3, 1),
    Sketcher.Constraint("Coincident", 3, 2, 0, 1),
    Sketcher.Constraint("Vertical", 0),
    Sketcher.Constraint("Horizontal", 1),
    Sketcher.Constraint("Vertical", 2),
    Sketcher.Constraint("Horizontal", 3),
    Sketcher.Constraint("DistanceX", 1, 1, 1, 2, 18.5),
    Sketcher.Constraint("DistanceY", 0, 2, 0, 1, 2.7),
    Sketcher.Constraint("DistanceX", 0, 2, -1, 1, 138.0),
    Sketcher.Constraint("DistanceY", -1, 1, 0, 2, 4.0),
])
pocket1 = body.newObject("PartDesign::Pocket", "Pocket")
pocket1.Profile = sketch6
pocket1.Length = 0.9
doc.recompute()

fillet = body.newObject("PartDesign::Fillet", "Fillet")
fillet.Base = (pocket1, edges_at(pocket1, [
    (-138, -35.25, 6.7),
    (-119.5, -35.25, 6.7),
    (-138, -35.25, 4),
    (-119.5, -35.25, 4),
]))
fillet.Radius = 0.75

sketch7 = body.newObject("Sketcher::SketchObject", "Sketch006")
sketch7.AttachmentSupport = (doc.getObject("XY_Plane"), [""])
sketch7.MapMode = "FlatFace"
sketch7.AttachmentOffset = App.Placement(App.Vector(0, 0, 0.8), App.Rotation())
sketch7.addGeometry([
    Part.LineSegment(App.Vector(-138.7, -33.3, 0), App.Vector(-138.7, -34.8, 0)),
    Part.LineSegment(App.Vector(-138.7, -34.8, 0), App.Vector(-138.1, -34.8, 0)),
    Part.LineSegment(App.Vector(-138.1, -34.8, 0), App.Vector(-138.1, -33.3, 0)),
    Part.LineSegment(App.Vector(-138.1, -33.3, 0), App.Vector(-138.7, -33.3, 0)),
], False)
sketch7.addConstraint([
    Sketcher.Constraint("Coincident", 0, 2, 1, 1),
    Sketcher.Constraint("Coincident", 1, 2, 2, 1),
    Sketcher.Constraint("Coincident", 2, 2, 3, 1),
    Sketcher.Constraint("Coincident", 3, 2, 0, 1),
    Sketcher.Constraint("Vertical", 0),
    Sketcher.Constraint("Horizontal", 1),
    Sketcher.Constraint("Vertical", 2),
    Sketcher.Constraint("Horizontal", 3),
    Sketcher.Constraint("DistanceX", 1, 1, 1, 2, 0.6),
    Sketcher.Constraint("DistanceY", 0, 2, 0, 1, 1.5),
    Sketcher.Constraint("DistanceX", 0, 2, -1, 1, 138.7),
    Sketcher.Constraint("DistanceY", 0, 2, -1, 1, 34.8),
])
pad6 = body.newObject("PartDesign::Pad", "Pad005")
pad6.Profile = sketch7
pad6.Length = 5

sketch8 = body.newObject("Sketcher::SketchObject", "Sketch007")
sketch8.AttachmentSupport = (doc.getObject("XY_Plane"), [""])
sketch8.MapMode = "FlatFace"
sketch8.AttachmentOffset = App.Placement(App.Vector(0, 0, 0.8), App.Rotation())
sketch8.addGeometry([
    Part.LineSegment(App.Vector(-94.1, -31.8, 0), App.Vector(-94.1, -34.8, 0)),
    Part.LineSegment(App.Vector(-94.1, -34.8, 0), App.Vector(-93.5, -34.8, 0)),
    Part.LineSegment(App.Vector(-93.5, -34.8, 0), App.Vector(-93.5, -31.8, 0)),
    Part.LineSegment(App.Vector(-93.5, -31.8, 0), App.Vector(-94.1, -31.8, 0)),
    Part.LineSegment(App.Vector(-58.5, -31.8, 0), App.Vector(-58.5, -34.8, 0)),
    Part.LineSegment(App.Vector(-58.5, -34.8, 0), App.Vector(-57.9, -34.8, 0)),
    Part.LineSegment(App.Vector(-57.9, -34.8, 0), App.Vector(-57.9, -31.8, 0)),
    Part.LineSegment(App.Vector(-57.9, -31.8, 0), App.Vector(-58.5, -31.8, 0)),
    Part.LineSegment(App.Vector(-49.5, -31.8, 0), App.Vector(-49.5, -34.8, 0)),
    Part.LineSegment(App.Vector(-49.5, -34.8, 0), App.Vector(-48.9, -34.8, 0)),
    Part.LineSegment(App.Vector(-48.9, -34.8, 0), App.Vector(-48.9, -31.8, 0)),
    Part.LineSegment(App.Vector(-48.9, -31.8, 0), App.Vector(-49.5, -31.8, 0)),
    Part.LineSegment(App.Vector(-13.6, -31.8, 0), App.Vector(-13.6, -34.8, 0)),
    Part.LineSegment(App.Vector(-13.6, -34.8, 0), App.Vector(-13, -34.8, 0)),
    Part.LineSegment(App.Vector(-13, -34.8, 0), App.Vector(-13, -31.8, 0)),
    Part.LineSegment(App.Vector(-13, -31.8, 0), App.Vector(-13.6, -31.8, 0)),
    Part.LineSegment(App.Vector(1.3, -31.8, 0), App.Vector(1.3, -34.8, 0)),
    Part.LineSegment(App.Vector(1.3, -34.8, 0), App.Vector(1.9, -34.8, 0)),
    Part.LineSegment(App.Vector(1.9, -34.8, 0), App.Vector(1.9, -31.8, 0)),
    Part.LineSegment(App.Vector(1.9, -31.8, 0), App.Vector(1.3, -31.8, 0)),
    Part.LineSegment(App.Vector(58.4, -31.8, 0), App.Vector(58.4, -34.8, 0)),
    Part.LineSegment(App.Vector(58.4, -34.8, 0), App.Vector(59, -34.8, 0)),
    Part.LineSegment(App.Vector(59, -34.8, 0), App.Vector(59, -31.8, 0)),
    Part.LineSegment(App.Vector(59, -31.8, 0), App.Vector(58.4, -31.8, 0)),
], False)
sketch8.addConstraint([
    Sketcher.Constraint("Coincident", 0, 2, 1, 1),
    Sketcher.Constraint("Coincident", 1, 2, 2, 1),
    Sketcher.Constraint("Coincident", 2, 2, 3, 1),
    Sketcher.Constraint("Coincident", 3, 2, 0, 1),
    Sketcher.Constraint("Coincident", 4, 2, 5, 1),
    Sketcher.Constraint("Coincident", 5, 2, 6, 1),
    Sketcher.Constraint("Coincident", 6, 2, 7, 1),
    Sketcher.Constraint("Coincident", 7, 2, 4, 1),
    Sketcher.Constraint("Coincident", 8, 2, 9, 1),
    Sketcher.Constraint("Coincident", 9, 2, 10, 1),
    Sketcher.Constraint("Coincident", 10, 2, 11, 1),
    Sketcher.Constraint("Coincident", 11, 2, 8, 1),
    Sketcher.Constraint("Coincident", 12, 2, 13, 1),
    Sketcher.Constraint("Coincident", 13, 2, 14, 1),
    Sketcher.Constraint("Coincident", 14, 2, 15, 1),
    Sketcher.Constraint("Coincident", 15, 2, 12, 1),
    Sketcher.Constraint("Coincident", 16, 2, 17, 1),
    Sketcher.Constraint("Coincident", 17, 2, 18, 1),
    Sketcher.Constraint("Coincident", 18, 2, 19, 1),
    Sketcher.Constraint("Coincident", 19, 2, 16, 1),
    Sketcher.Constraint("Coincident", 20, 2, 21, 1),
    Sketcher.Constraint("Coincident", 21, 2, 22, 1),
    Sketcher.Constraint("Coincident", 22, 2, 23, 1),
    Sketcher.Constraint("Coincident", 23, 2, 20, 1),
    Sketcher.Constraint("Vertical", 0),
    Sketcher.Constraint("Horizontal", 1),
    Sketcher.Constraint("Vertical", 2),
    Sketcher.Constraint("Horizontal", 3),
    Sketcher.Constraint("Vertical", 4),
    Sketcher.Constraint("Horizontal", 5),
    Sketcher.Constraint("Vertical", 6),
    Sketcher.Constraint("Horizontal", 7),
    Sketcher.Constraint("Vertical", 8),
    Sketcher.Constraint("Horizontal", 9),
    Sketcher.Constraint("Vertical", 10),
    Sketcher.Constraint("Horizontal", 11),
    Sketcher.Constraint("Vertical", 12),
    Sketcher.Constraint("Horizontal", 13),
    Sketcher.Constraint("Vertical", 14),
    Sketcher.Constraint("Horizontal", 15),
    Sketcher.Constraint("Vertical", 16),
    Sketcher.Constraint("Horizontal", 17),
    Sketcher.Constraint("Vertical", 18),
    Sketcher.Constraint("Horizontal", 19),
    Sketcher.Constraint("Vertical", 20),
    Sketcher.Constraint("Horizontal", 21),
    Sketcher.Constraint("Vertical", 22),
    Sketcher.Constraint("Horizontal", 23),
    Sketcher.Constraint("Horizontal", 1, 2, 4, 2),
    Sketcher.Constraint("Horizontal", 3, 2, 6, 2),
    Sketcher.Constraint("Horizontal", 5, 2, 8, 2),
    Sketcher.Constraint("Horizontal", 7, 2, 10, 2),
    Sketcher.Constraint("Horizontal", 9, 2, 12, 2),
    Sketcher.Constraint("Horizontal", 11, 2, 14, 2),
    Sketcher.Constraint("Horizontal", 13, 2, 16, 2),
    Sketcher.Constraint("Horizontal", 15, 2, 18, 2),
    Sketcher.Constraint("Horizontal", 17, 2, 20, 2),
    Sketcher.Constraint("Horizontal", 19, 2, 22, 2),
    Sketcher.Constraint("Equal", 3, 5),
    Sketcher.Constraint("Equal", 7, 9),
    Sketcher.Constraint("Equal", 11, 13),
    Sketcher.Constraint("Equal", 15, 17),
    Sketcher.Constraint("Equal", 19, 21),
    Sketcher.Constraint("DistanceY", 0, 2, 0, 1, 3.0),
    Sketcher.Constraint("DistanceX", 1, 1, 1, 2, 0.6),
    Sketcher.Constraint("DistanceX", 13, 2, -1, 1, 13.0),
    Sketcher.Constraint("DistanceX", -1, 1, 21, 2, 59.0),
    Sketcher.Constraint("DistanceX", 1, 2, 4, 2, 35.0),
    Sketcher.Constraint("DistanceX", 4, 2, 8, 2, 9.0),
    Sketcher.Constraint("DistanceX", 0, 2, -1, 1, 94.1),
    Sketcher.Constraint("DistanceY", 0, 2, -1, 1, 34.8),
    Sketcher.Constraint("DistanceX", -1, 1, 16, 2, 1.3),
])
pad7 = body.newObject("PartDesign::Pad", "Pad006")
pad7.Profile = sketch8
pad7.Length = 3
doc.recompute()

fillet2 = body.newObject("PartDesign::Fillet", "Fillet001")
fillet2.Base = (pad7, edges_at(pad7, [
    (58.7, -31.8, 3.8),
    (1.6, -31.8, 3.8),
    (-13.3, -31.8, 3.8),
    (-49.2, -31.8, 3.8),
    (-58.2, -31.8, 3.8),
    (-93.8, -31.8, 3.8),
]))
fillet2.Radius = 1

sketch9 = body.newObject("Sketcher::SketchObject", "Sketch008")
sketch9.AttachmentSupport = (doc.getObject("YZ_Plane"), [""])
sketch9.MapMode = "FlatFace"
sketch9.AttachmentOffset = App.Placement(App.Vector(0, 0, -138.7), App.Rotation())
sketch9.addGeometry([
    Part.LineSegment(App.Vector(-33.3, 5.8, 0), App.Vector(-33.3, 5.4, 0)),
    Part.LineSegment(App.Vector(-33.3, 5.4, 0), App.Vector(-34.8, 5.4, 0)),
    Part.LineSegment(App.Vector(-34.8, 5.4, 0), App.Vector(-34.8, 5.8, 0)),
    Part.LineSegment(App.Vector(-34.8, 5.8, 0), App.Vector(-33.3, 5.8, 0)),
], False)
sketch9.addConstraint([
    Sketcher.Constraint("Coincident", 0, 2, 1, 1),
    Sketcher.Constraint("Coincident", 1, 2, 2, 1),
    Sketcher.Constraint("Coincident", 2, 2, 3, 1),
    Sketcher.Constraint("Coincident", 3, 2, 0, 1),
    Sketcher.Constraint("Vertical", 0),
    Sketcher.Constraint("Horizontal", 1),
    Sketcher.Constraint("Vertical", 2),
    Sketcher.Constraint("Horizontal", 3),
    Sketcher.Constraint("DistanceX", 1, 2, 1, 1, 1.5),
    Sketcher.Constraint("DistanceY", 0, 2, 0, 1, 0.4),
    Sketcher.Constraint("DistanceX", 0, 2, -1, 1, 33.3),
    Sketcher.Constraint("DistanceY", -1, 1, 0, 2, 5.4),
])
pad8 = body.newObject("PartDesign::Pad", "Pad007")
pad8.Profile = sketch9
pad8.Length = 0.6
pad8.Reversed = True
doc.recompute()

fillet3 = body.newObject("PartDesign::Fillet", "Fillet002")
fillet3.Base = (pad8, edges_at(pad8, [(-138.1, -34.05, 5.8)]))
fillet3.Radius = 0.25

doc.recompute()
